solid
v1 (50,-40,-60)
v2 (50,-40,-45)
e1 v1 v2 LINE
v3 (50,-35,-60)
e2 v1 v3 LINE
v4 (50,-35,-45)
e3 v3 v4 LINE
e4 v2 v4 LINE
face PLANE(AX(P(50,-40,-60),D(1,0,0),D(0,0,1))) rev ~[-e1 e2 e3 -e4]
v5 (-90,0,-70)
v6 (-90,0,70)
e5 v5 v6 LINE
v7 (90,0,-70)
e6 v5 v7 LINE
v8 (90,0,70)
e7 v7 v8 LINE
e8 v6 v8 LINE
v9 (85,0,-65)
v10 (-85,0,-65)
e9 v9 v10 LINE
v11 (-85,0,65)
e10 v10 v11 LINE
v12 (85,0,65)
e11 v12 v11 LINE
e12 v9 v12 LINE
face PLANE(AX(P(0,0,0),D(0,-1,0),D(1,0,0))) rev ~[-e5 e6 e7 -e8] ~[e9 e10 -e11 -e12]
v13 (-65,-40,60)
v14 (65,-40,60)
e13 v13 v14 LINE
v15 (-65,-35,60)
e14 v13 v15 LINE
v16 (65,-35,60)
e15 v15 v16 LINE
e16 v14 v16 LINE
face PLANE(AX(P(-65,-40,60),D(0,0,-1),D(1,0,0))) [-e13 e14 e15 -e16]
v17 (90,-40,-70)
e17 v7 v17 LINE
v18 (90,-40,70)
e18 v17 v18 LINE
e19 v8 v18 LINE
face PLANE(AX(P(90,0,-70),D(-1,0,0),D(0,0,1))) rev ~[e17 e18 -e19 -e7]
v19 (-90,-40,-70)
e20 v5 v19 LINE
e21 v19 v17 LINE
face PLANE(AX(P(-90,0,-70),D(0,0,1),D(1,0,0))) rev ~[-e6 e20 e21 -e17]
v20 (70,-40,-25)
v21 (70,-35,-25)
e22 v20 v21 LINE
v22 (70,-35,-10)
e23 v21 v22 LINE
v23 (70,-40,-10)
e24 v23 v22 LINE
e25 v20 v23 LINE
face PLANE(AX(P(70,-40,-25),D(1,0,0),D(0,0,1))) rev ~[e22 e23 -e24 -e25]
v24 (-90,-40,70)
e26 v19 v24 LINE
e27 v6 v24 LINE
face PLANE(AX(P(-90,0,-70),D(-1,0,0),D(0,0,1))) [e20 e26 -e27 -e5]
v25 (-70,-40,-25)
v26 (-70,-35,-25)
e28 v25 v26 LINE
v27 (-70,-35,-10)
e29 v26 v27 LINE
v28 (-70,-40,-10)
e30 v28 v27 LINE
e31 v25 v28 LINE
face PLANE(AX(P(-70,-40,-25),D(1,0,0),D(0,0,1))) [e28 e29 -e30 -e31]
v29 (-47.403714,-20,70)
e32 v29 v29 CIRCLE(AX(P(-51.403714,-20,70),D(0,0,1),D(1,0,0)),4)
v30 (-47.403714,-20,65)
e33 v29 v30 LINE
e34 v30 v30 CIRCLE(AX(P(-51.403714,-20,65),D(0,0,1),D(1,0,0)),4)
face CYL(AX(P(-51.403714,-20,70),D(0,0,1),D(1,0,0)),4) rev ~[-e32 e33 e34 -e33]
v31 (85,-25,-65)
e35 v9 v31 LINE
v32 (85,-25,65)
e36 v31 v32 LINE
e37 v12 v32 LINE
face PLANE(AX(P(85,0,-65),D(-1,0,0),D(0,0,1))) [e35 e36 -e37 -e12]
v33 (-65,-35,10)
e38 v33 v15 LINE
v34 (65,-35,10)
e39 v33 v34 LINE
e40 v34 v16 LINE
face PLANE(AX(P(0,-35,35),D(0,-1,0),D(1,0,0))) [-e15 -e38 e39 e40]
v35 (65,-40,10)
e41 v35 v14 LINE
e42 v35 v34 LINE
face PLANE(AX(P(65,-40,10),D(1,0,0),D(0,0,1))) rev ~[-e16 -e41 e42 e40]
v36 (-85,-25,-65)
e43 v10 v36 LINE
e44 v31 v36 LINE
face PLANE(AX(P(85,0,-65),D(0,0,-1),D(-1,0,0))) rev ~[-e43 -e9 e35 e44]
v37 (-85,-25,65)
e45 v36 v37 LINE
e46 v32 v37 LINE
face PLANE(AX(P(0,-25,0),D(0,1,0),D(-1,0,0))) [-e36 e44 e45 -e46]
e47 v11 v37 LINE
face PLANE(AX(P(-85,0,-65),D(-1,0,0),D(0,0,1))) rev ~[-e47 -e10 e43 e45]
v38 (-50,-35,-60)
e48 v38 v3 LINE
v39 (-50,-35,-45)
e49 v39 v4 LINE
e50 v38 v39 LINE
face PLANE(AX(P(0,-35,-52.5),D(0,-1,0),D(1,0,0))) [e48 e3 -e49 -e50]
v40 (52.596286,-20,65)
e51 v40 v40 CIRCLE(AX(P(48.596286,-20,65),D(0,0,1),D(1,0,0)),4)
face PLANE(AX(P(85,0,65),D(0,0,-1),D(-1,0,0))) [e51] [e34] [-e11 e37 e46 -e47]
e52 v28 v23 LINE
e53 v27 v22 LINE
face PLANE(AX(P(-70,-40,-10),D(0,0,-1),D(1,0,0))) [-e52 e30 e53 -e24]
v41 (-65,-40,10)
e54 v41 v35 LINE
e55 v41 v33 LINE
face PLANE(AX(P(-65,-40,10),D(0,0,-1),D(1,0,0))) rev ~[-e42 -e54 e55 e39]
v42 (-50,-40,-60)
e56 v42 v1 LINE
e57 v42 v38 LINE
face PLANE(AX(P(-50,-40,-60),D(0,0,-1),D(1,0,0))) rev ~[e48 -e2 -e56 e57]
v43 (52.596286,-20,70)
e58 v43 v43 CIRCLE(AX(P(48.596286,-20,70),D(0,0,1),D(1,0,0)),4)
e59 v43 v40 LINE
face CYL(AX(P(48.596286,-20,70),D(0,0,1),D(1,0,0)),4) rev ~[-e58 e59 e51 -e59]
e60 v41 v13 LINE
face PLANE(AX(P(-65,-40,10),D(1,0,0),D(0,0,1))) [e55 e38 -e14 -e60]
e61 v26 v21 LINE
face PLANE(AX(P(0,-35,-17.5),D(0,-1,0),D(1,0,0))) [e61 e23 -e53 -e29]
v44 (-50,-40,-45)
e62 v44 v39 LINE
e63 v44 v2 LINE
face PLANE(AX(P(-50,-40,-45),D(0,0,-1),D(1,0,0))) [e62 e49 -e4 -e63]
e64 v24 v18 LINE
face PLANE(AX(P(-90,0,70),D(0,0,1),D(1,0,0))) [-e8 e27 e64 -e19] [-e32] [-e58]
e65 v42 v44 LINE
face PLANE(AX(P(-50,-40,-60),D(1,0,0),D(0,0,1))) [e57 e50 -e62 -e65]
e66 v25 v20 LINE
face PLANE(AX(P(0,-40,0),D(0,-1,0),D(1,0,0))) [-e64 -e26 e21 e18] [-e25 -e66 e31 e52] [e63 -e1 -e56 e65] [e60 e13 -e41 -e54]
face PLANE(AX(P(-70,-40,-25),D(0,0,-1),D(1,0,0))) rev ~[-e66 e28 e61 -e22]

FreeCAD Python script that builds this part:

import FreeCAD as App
import Part
import Sketcher

V = App.Vector
Q = App.Units.Quantity

doc = App.newDocument("Part")
body = doc.addObject("PartDesign::Body", "Body")

sketch1 = body.newObject("Sketcher::SketchObject", "Sketch")
sketch1.AttachmentSupport = (doc.getObject("XZ_Plane"), [""])
sketch1.MapMode = "FlatFace"
sketch1.addGeometry(Part.LineSegment(V(-90, 70, 0), V(-90, -70, 0)), False)
sketch1.addGeometry(Part.LineSegment(V(-90, -70, 0), V(90, -70, 0)), False)
sketch1.addGeometry(Part.LineSegment(V(90, -70, 0), V(90, 70, 0)), False)
sketch1.addGeometry(Part.LineSegment(V(90, 70, 0), V(-90, 70, 0)), False)
sketch1.addConstraint(Sketcher.Constraint("Coincident", 0, 2, 1, 1))
sketch1.addConstraint(Sketcher.Constraint("Coincident", 1, 2, 2, 1))
sketch1.addConstraint(Sketcher.Constraint("Coincident", 2, 2, 3, 1))
sketch1.addConstraint(Sketcher.Constraint("Coincident", 3, 2, 0, 1))
sketch1.addConstraint(Sketcher.Constraint("Vertical", 0))
sketch1.addConstraint(Sketcher.Constraint("Horizontal", 1))
sketch1.addConstraint(Sketcher.Constraint("Vertical", 2))
sketch1.addConstraint(Sketcher.Constraint("Horizontal", 3))
sketch1.addConstraint(Sketcher.Constraint("Symmetric", 0, 2, 2, 2, -1, 1))
sketch1.addConstraint(Sketcher.Constraint("DistanceX", 1, 1, 1, 2, Q("180 mm")))
sketch1.addConstraint(Sketcher.Constraint("DistanceY", 0, 2, 0, 1, Q("140 mm")))
pad1 = body.newObject("PartDesign::Pad", "Pad")
pad1.Profile = sketch1
pad1.Length = 40

sketch2 = body.newObject("Sketcher::SketchObject", "Sketch001")
sketch2.AttachmentSupport = (doc.getObject("XZ_Plane"), [""])
sketch2.MapMode = "FlatFace"
sketch2.AttachmentOffset = App.Placement(V(0, 0, 40), App.Rotation())
sketch2.addGeometry(Part.LineSegment(V(-65, 60, 0), V(-65, 10, 0)), False)
sketch2.addGeometry(Part.LineSegment(V(-65, 10, 0), V(65, 10, 0)), False)
sketch2.addGeometry(Part.LineSegment(V(65, 10, 0), V(65, 60, 0)), False)
sketch2.addGeometry(Part.LineSegment(V(65, 60, 0), V(-65, 60, 0)), False)
sketch2.addGeometry(Part.LineSegment(V(-70, -10, 0), V(-70, -25, 0)), False)
sketch2.addGeometry(Part.LineSegment(V(-70, -25, 0), V(70, -25, 0)), False)
sketch2.addGeometry(Part.LineSegment(V(70, -25, 0), V(70, -10, 0)), False)
sketch2.addGeometry(Part.LineSegment(V(70, -10, 0), V(-70, -10, 0)), False)
sketch2.addGeometry(Part.LineSegment(V(-50, -45, 0), V(-50, -60, 0)), False)
sketch2.addGeometry(Part.LineSegment(V(-50, -60, 0), V(50, -60, 0)), False)
sketch2.addGeometry(Part.LineSegment(V(50, -60, 0), V(50, -45, 0)), False)
sketch2.addGeometry(Part.LineSegment(V(50, -45, 0), V(-50, -45, 0)), False)
sketch2.addConstraint(Sketcher.Constraint("Coincident", 0, 2, 1, 1))
sketch2.addConstraint(Sketcher.Constraint("Coincident", 1, 2, 2, 1))
sketch2.addConstraint(Sketcher.Constraint("Coincident", 2, 2, 3, 1))
sketch2.addConstraint(Sketcher.Constraint("Coincident", 3, 2, 0, 1))
sketch2.addConstraint(Sketcher.Constraint("Coincident", 4, 2, 5, 1))
sketch2.addConstraint(Sketcher.Constraint("Coincident", 5, 2, 6, 1))
sketch2.addConstraint(Sketcher.Constraint("Coincident", 6, 2, 7, 1))
sketch2.addConstraint(Sketcher.Constraint("Coincident", 7, 2, 4, 1))
sketch2.addConstraint(Sketcher.Constraint("Coincident", 8, 2, 9, 1))
sketch2.addConstraint(Sketcher.Constraint("Coincident", 9, 2, 10, 1))
sketch2.addConstraint(Sketcher.Constraint("Coincident", 10, 2, 11, 1))
sketch2.addConstraint(Sketcher.Constraint("Coincident", 11, 2, 8, 1))
sketch2.addConstraint(Sketcher.Constraint("Vertical", 0))
sketch2.addConstraint(Sketcher.Constraint("Horizontal", 1))
sketch2.addConstraint(Sketcher.Constraint("Vertical", 2))
sketch2.addConstraint(Sketcher.Constraint("Horizontal", 3))
sketch2.addConstraint(Sketcher.Constraint("Vertical", 4))
sketch2.addConstraint(Sketcher.Constraint("Horizontal", 5))
sketch2.addConstraint(Sketcher.Constraint("Vertical", 6))
sketch2.addConstraint(Sketcher.Constraint("Horizontal", 7))
sketch2.addConstraint(Sketcher.Constraint("Vertical", 8))
sketch2.addConstraint(Sketcher.Constraint("Horizontal", 9))
sketch2.addConstraint(Sketcher.Constraint("Vertical", 10))
sketch2.addConstraint(Sketcher.Constraint("Horizontal", 11))
sketch2.addConstraint(Sketcher.Constraint("Equal", 6, 8))
sketch2.addConstraint(Sketcher.Constraint("DistanceX", 1, 1, 1, 2, Q("130 mm")))
sketch2.addConstraint(Sketcher.Constraint("DistanceX", 5, 1, 5, 2, Q("140 mm")))
sketch2.addConstraint(Sketcher.Constraint("DistanceX", 9, 1, 9, 2, Q("100 mm")))
sketch2.addConstraint(Sketcher.Constraint("DistanceY", 0, 2, 0, 1, Q("50 mm")))
sketch2.addConstraint(Sketcher.Constraint("DistanceY", 4, 2, 4, 1, Q("15 mm")))
sketch2.addConstraint(Sketcher.Constraint("DistanceX", 0, 2, -1, 1, Q("65 mm")))
sketch2.addConstraint(Sketcher.Constraint("DistanceY", -1, 1, 0, 2, Q("10 mm")))
sketch2.addConstraint(Sketcher.Constraint("DistanceX", 4, 2, -1, 1, Q("70 mm")))
sketch2.addConstraint(Sketcher.Constraint("DistanceY", 4, 2, -1, 1, Q("25 mm")))
sketch2.addConstraint(Sketcher.Constraint("DistanceX", 8, 2, -1, 1, Q("50 mm")))
sketch2.addConstraint(Sketcher.Constraint("DistanceY", 8, 2, -1, 1, Q("60 mm")))
pocket1 = body.newObject("PartDesign::Pocket", "Pocket")
pocket1.Profile = sketch2
pocket1.Length = 5

sketch3 = body.newObject("Sketcher::SketchObject", "Sketch002")
sketch3.AttachmentSupport = (doc.getObject("XZ_Plane"), [""])
sketch3.MapMode = "FlatFace"
sketch3.addGeometry(Part.LineSegment(V(85, 65, 0), V(85, -65, 0)), False)
sketch3.addGeometry(Part.LineSegment(V(85, -65, 0), V(-85, -65, 0)), False)
sketch3.addGeometry(Part.LineSegment(V(-85, -65, 0), V(-85, 65, 0)), False)
sketch3.addGeometry(Part.LineSegment(V(-85, 65, 0), V(85, 65, 0)), False)
sketch3.addConstraint(Sketcher.Constraint("Coincident", 0, 2, 1, 1))
sketch3.addConstraint(Sketcher.Constraint("Coincident", 1, 2, 2, 1))
sketch3.addConstraint(Sketcher.Constraint("Coincident", 2, 2, 3, 1))
sketch3.addConstraint(Sketcher.Constraint("Coincident", 3, 2, 0, 1))
sketch3.addConstraint(Sketcher.Constraint("Vertical", 0))
sketch3.addConstraint(Sketcher.Constraint("Horizontal", 1))
sketch3.addConstraint(Sketcher.Constraint("Vertical", 2))
sketch3.addConstraint(Sketcher.Constraint("Horizontal", 3))
sketch3.addConstraint(Sketcher.Constraint("Symmetric", 0, 2, 2, 2, -1, 1))
sketch3.addConstraint(Sketcher.Constraint("DistanceX", 1, 2, 1, 1, Q("170 mm")))
sketch3.addConstraint(Sketcher.Constraint("DistanceY", 0, 2, 0, 1, Q("130 mm")))
pocket2 = body.newObject("PartDesign::Pocket", "Pocket001")
pocket2.Profile = sketch3
pocket2.Length = 25
pocket2.Reversed = True

sketch4 = body.newObject("Sketcher::SketchObject", "Sketch003")
sketch4.AttachmentSupport = (doc.getObject("XY_Plane"), [""])
sketch4.MapMode = "FlatFace"
sketch4.AttachmentOffset = App.Placement(V(0, 0, 70), App.Rotation())
sketch4.addGeometry(Part.Circle(V(48.6, -20, 0), V(0, 0, 1), 4), False)
sketch4.addGeometry(Part.Circle(V(-51.4, -20, 0), V(0, 0, 1), 4), False)
sketch4.addConstraint(Sketcher.Constraint("Equal", 0, 1))
sketch4.addConstraint(Sketcher.Constraint("Horizontal", 0, 3, 1, 3))
sketch4.addConstraint(Sketcher.Constraint("Diameter", 0, Q("8 mm")))
sketch4.addConstraint(Sketcher.Constraint("DistanceY", 0, 3, -1, 1, Q("20 mm")))
sketch4.addConstraint(Sketcher.Constraint("DistanceX", 1, 3, 0, 3, Q("100 mm")))
sketch4.addConstraint(Sketcher.Constraint("DistanceX", -1, 1, 0, 3, Q("48.596286 mm")))
pocket3 = body.newObject("PartDesign::Pocket", "Pocket002")
pocket3.Profile = sketch4
pocket3.Length = 25

doc.recompute()
